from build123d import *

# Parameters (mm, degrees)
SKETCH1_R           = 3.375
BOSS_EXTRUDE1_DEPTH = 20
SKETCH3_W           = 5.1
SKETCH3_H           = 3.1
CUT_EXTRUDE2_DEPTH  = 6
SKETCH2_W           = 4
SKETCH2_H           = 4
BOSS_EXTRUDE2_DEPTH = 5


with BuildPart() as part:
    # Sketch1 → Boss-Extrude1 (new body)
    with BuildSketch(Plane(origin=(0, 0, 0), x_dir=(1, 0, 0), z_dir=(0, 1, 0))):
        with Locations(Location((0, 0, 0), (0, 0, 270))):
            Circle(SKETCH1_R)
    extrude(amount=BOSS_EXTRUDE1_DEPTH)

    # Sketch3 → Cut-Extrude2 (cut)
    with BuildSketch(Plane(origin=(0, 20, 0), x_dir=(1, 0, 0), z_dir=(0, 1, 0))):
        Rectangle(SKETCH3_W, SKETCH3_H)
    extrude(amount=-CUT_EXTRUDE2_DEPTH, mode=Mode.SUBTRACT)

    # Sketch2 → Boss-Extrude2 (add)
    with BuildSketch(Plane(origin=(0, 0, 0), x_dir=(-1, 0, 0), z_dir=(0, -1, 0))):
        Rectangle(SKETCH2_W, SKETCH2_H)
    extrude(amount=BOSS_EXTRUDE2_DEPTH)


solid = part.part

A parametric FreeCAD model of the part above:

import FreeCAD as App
import Part
import Sketcher

doc = App.newDocument("Part")
body = doc.addObject("PartDesign::Body", "Body")

sketch1 = doc.addObject("Sketcher::SketchObject", "Sketch")
body.addObject(sketch1)
sketch1.AttachmentSupport = (doc.XZ_Plane, [""])
sketch1.MapMode = "FlatFace"
sketch1.addGeometry(Part.Circle(App.Vector(0, 0, 0), App.Vector(0, 0, 1), 3.4), False)
sketch1.addConstraint([
    Sketcher.Constraint("Coincident", 0, 3, -1, 1),
    Sketcher.Constraint("Diameter", 0, 6.75),
])
pad1 = doc.addObject("PartDesign::Pad", "Pad")
body.addObject(pad1)
pad1.Profile = sketch1
pad1.Length = 20
pad1.Reversed = True

sketch2 = doc.addObject("Sketcher::SketchObject", "Sketch001")
body.addObject(sketch2)
sketch2.AttachmentSupport = (doc.XZ_Plane, [""])
sketch2.MapMode = "FlatFace"
sketch2.AttachmentOffset = App.Placement(App.Vector(0, 0, -20), App.Rotation())
sketch2.addGeometry([
    Part.LineSegment(App.Vector(-2.5, -1.6, 0), App.Vector(-2.5, 1.6, 0)),
    Part.LineSegment(App.Vector(-2.5, 1.6, 0), App.Vector(2.5, 1.6, 0)),
    Part.LineSegment(App.Vector(2.5, 1.6, 0), App.Vector(2.5, -1.6, 0)),
    Part.LineSegment(App.Vector(2.5, -1.6, 0), App.Vector(-2.5, -1.6, 0)),
], False)
sketch2.addConstraint([
    Sketcher.Constraint("Coincident", 0, 2, 1, 1),
    Sketcher.Constraint("Coincident", 1, 2, 2, 1),
    Sketcher.Constraint("Coincident", 2, 2, 3, 1),
    Sketcher.Constraint("Coincident", 3, 2, 0, 1),
    Sketcher.Constraint("Vertical", 0),
    Sketcher.Constraint("Horizontal", 1),
    Sketcher.Constraint("Vertical", 2),
    Sketcher.Constraint("Horizontal", 3),
    Sketcher.Constraint("Symmetric", 0, 2, 2, 2, -1, 1),
    Sketcher.Constraint("DistanceX", 1, 1, 1, 2, 5.1),
    Sketcher.Constraint("DistanceY", 0, 1, 0, 2, 3.1),
])
pocket1 = doc.addObject("PartDesign::Pocket", "Pocket")
body.addObject(pocket1)
pocket1.Profile = sketch2
pocket1.Length = 6
pocket1.Reversed = True

sketch3 = doc.addObject("Sketcher::SketchObject", "Sketch002")
body.addObject(sketch3)
sketch3.AttachmentSupport = (doc.XZ_Plane, [""])
sketch3.MapMode = "FlatFace"
sketch3.addGeometry([
    Part.LineSegment(App.Vector(2, -2, 0), App.Vector(2, 2, 0)),
    Part.LineSegment(App.Vector(2, 2, 0), App.Vector(-2, 2, 0)),
    Part.LineSegment(App.Vector(-2, 2, 0), App.Vector(-2, -2, 0)),
    Part.LineSegment(App.Vector(-2, -2, 0), App.Vector(2, -2, 0)),
], False)
sketch3.addConstraint([
    Sketcher.Constraint("Coincident", 0, 2, 1, 1),
    Sketcher.Constraint("Coincident", 1, 2, 2, 1),
    Sketcher.Constraint("Coincident", 2, 2, 3, 1),
    Sketcher.Constraint("Coincident", 3, 2, 0, 1),
    Sketcher.Constraint("Vertical", 0),
    Sketcher.Constraint("Horizontal", 1),
    Sketcher.Constraint("Vertical", 2),
    Sketcher.Constraint("Horizontal", 3),
    Sketcher.Constraint("Symmetric", 0, 2, 2, 2, -1, 1),
    Sketcher.Constraint("Equal", 3, 0),
    Sketcher.Constraint("DistanceX", 1, 2, 1, 1, 4.0),
])
pad2 = doc.addObject("PartDesign::Pad", "Pad001")
body.addObject(pad2)
pad2.Profile = sketch3
pad2.Length = 5

doc.recompute()
